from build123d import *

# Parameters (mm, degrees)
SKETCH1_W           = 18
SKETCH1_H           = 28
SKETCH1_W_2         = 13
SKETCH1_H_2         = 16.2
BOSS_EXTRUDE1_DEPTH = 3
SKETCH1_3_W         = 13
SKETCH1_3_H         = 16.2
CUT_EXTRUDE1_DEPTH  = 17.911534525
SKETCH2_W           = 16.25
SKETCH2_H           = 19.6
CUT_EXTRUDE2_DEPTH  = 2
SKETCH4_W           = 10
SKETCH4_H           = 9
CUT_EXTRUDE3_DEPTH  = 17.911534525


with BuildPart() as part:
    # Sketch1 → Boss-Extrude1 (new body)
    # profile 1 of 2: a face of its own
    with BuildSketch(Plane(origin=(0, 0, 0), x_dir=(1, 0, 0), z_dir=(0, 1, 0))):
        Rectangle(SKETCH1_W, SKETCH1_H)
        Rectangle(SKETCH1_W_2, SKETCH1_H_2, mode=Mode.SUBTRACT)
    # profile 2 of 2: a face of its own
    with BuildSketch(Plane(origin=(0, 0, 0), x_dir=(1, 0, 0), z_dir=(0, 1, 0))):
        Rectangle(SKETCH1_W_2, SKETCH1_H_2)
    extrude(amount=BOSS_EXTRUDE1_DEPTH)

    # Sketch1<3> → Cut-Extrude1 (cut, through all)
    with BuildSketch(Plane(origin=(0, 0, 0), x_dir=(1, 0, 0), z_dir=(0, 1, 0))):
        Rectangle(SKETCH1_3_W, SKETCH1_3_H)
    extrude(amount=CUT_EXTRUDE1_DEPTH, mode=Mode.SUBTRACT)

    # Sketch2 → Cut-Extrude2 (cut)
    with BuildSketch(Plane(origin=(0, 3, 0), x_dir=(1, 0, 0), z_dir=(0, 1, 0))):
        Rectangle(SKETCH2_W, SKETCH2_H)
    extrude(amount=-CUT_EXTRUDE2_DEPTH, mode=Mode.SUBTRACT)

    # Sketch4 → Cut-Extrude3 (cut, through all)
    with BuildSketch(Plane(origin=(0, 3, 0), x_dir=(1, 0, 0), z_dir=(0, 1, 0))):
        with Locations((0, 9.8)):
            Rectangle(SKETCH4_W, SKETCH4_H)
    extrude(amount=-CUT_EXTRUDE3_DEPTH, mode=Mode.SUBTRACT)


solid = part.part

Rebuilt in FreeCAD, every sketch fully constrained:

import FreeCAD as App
import Part
import Sketcher

V = App.Vector


def add_polygon(sketch, points):
    """Adds a closed chain of lines whose ends are joined by coincident constraints."""
    first, n = sketch.GeometryCount, len(points)
    for a, b in zip(points, points[1:] + points[:1]):
        sketch.addGeometry(Part.LineSegment(App.Vector(*a, 0), App.Vector(*b, 0)), False)
    for i in range(n):
        sketch.addConstraint(Sketcher.Constraint("Coincident", first + i, 2, first + (i + 1) % n, 1))

doc = App.newDocument("Part")
body = doc.addObject("PartDesign::Body", "Body")

sketch1 = body.newObject("Sketcher::SketchObject", "Sketch")
sketch1.AttachmentSupport = (doc.getObject("XZ_Plane"), [""])
sketch1.MapMode = "FlatFace"
add_polygon(sketch1, [(-9, -14), (-9, 14), (9, 14), (9, -14)])
sketch1.addConstraint(Sketcher.Constraint("Vertical", 0))
sketch1.addConstraint(Sketcher.Constraint("Horizontal", 1))
sketch1.addConstraint(Sketcher.Constraint("Vertical", 2))
sketch1.addConstraint(Sketcher.Constraint("Horizontal", 3))
sketch1.addConstraint(Sketcher.Constraint("Symmetric", 0, 2, 2, 2, -1, 1))
sketch1.addConstraint(Sketcher.Constraint("DistanceX", 1, 1, 1, 2, 18.0))
sketch1.addConstraint(Sketcher.Constraint("DistanceY", 0, 1, 0, 2, 28.0))
pad1 = body.newObject("PartDesign::Pad", "Pad")
pad1.Profile = sketch1
pad1.Length = 3
pad1.Reversed = True

sketch2 = body.newObject("Sketcher::SketchObject", "Sketch001")
sketch2.AttachmentSupport = (doc.getObject("XZ_Plane"), [""])
sketch2.MapMode = "FlatFace"
add_polygon(sketch2, [(-6, -8), (-6, 8), (6, 8), (6, -8)])
sketch2.addConstraint(Sketcher.Constraint("Vertical", 0))
sketch2.addConstraint(Sketcher.Constraint("Horizontal", 1))
sketch2.addConstraint(Sketcher.Constraint("Vertical", 2))
sketch2.addConstraint(Sketcher.Constraint("Horizontal", 3))
sketch2.addConstraint(Sketcher.Constraint("Symmetric", 0, 2, 2, 2, -1, 1))
sketch2.addConstraint(Sketcher.Constraint("DistanceX", 1, 1, 1, 2, 13.0))
sketch2.addConstraint(Sketcher.Constraint("DistanceY", 0, 1, 0, 2, 16.2))
pocket1 = body.newObject("PartDesign::Pocket", "Pocket")
pocket1.Profile = sketch2
pocket1.Type = "ThroughAll"

sketch3 = body.newObject("Sketcher::SketchObject", "Sketch002")
sketch3.AttachmentSupport = (doc.getObject("XZ_Plane"), [""])
sketch3.MapMode = "FlatFace"
sketch3.AttachmentOffset = App.Placement(V(0, 0, -3), App.Rotation())
add_polygon(sketch3, [(-8, -10), (-8, 10), (8, 10), (8, -10)])
sketch3.addConstraint(Sketcher.Constraint("Vertical", 0))
sketch3.addConstraint(Sketcher.Constraint("Horizontal", 1))
sketch3.addConstraint(Sketcher.Constraint("Vertical", 2))
sketch3.addConstraint(Sketcher.Constraint("Horizontal", 3))
sketch3.addConstraint(Sketcher.Constraint("Symmetric", 0, 2, 2, 2, -1, 1))
sketch3.addConstraint(Sketcher.Constraint("DistanceY", 0, 1, 0, 2, 19.6))
sketch3.addConstraint(Sketcher.Constraint("DistanceX", 1, 1, 1, 2, 16.25))
pocket2 = body.newObject("PartDesign::Pocket", "Pocket001")
pocket2.Profile = sketch3
pocket2.Length = 2
pocket2.Reversed = True

sketch4 = body.newObject("Sketcher::SketchObject", "Sketch003")
sketch4.AttachmentSupport = (doc.getObject("XZ_Plane"), [""])
sketch4.MapMode = "FlatFace"
sketch4.AttachmentOffset = App.Placement(V(0, 0, -3), App.Rotation())
add_polygon(sketch4, [(-5, -14), (-5, -5), (5, -5), (5, -14)])
sketch4.addConstraint(Sketcher.Constraint("Vertical", 0))
sketch4.addConstraint(Sketcher.Constraint("Horizontal", 1))
sketch4.addConstraint(Sketcher.Constraint("Vertical", 2))
sketch4.addConstraint(Sketcher.Constraint("Horizontal", 3))
sketch4.addConstraint(Sketcher.Constraint("DistanceX", 1, 1, 1, 2, 10.0))
sketch4.addConstraint(Sketcher.Constraint("DistanceY", 0, 1, 0, 2, 9.0))
sketch4.addConstraint(Sketcher.Constraint("DistanceX", 0, 2, -1, 1, 5.0))
sketch4.addConstraint(Sketcher.Constraint("DistanceY", 0, 2, -1, 1, 5.3))
pocket3 = body.newObject("PartDesign::Pocket", "Pocket002")
pocket3.Profile = sketch4
pocket3.Type = "ThroughAll"
pocket3.Reversed = True

doc.recompute()
